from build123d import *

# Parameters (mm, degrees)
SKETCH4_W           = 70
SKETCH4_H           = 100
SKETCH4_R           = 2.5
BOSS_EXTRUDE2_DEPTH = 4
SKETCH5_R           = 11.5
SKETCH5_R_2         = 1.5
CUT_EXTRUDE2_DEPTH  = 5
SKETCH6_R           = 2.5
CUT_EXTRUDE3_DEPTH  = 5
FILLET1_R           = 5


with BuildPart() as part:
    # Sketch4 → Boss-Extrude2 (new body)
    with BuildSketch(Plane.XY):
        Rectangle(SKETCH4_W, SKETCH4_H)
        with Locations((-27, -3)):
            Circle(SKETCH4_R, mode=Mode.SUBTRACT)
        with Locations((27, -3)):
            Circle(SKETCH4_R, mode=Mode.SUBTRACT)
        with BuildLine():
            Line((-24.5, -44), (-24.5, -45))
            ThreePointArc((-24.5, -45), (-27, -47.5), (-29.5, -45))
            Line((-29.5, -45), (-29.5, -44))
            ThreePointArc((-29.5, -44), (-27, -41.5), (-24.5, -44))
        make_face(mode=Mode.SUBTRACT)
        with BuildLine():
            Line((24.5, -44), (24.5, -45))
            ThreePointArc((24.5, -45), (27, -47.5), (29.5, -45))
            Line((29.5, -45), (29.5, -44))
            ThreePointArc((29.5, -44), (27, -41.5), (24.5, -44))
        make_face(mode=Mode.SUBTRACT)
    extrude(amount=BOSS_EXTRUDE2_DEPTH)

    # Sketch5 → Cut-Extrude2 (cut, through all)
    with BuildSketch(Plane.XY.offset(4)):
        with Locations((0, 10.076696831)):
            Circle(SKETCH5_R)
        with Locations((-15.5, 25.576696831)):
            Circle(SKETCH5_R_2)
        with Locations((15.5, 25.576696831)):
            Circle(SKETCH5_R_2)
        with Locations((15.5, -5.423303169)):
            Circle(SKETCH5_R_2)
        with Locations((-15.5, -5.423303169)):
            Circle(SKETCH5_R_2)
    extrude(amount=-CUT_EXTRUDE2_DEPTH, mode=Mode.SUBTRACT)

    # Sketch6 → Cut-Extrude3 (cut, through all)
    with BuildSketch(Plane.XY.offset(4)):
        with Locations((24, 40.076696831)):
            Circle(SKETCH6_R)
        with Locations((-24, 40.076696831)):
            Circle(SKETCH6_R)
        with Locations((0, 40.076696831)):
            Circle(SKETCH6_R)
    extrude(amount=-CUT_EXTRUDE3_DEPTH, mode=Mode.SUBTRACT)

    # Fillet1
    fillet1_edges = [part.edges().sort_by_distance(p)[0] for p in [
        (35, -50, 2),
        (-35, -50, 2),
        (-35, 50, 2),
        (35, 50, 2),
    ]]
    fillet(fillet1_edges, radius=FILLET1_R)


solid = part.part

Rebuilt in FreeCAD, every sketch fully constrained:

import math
import FreeCAD as App
import Part
import Sketcher
from FreeCAD import Vector


def edges_at(feature, points):
    """Names of the edges that pass closest to the given points."""
    edges = feature.Shape.Edges
    near = lambda p: min(range(len(edges)), key=lambda i: edges[i].distToShape(Part.Vertex(*p))[0])
    return sorted({f"Edge{near(p) + 1}" for p in points})

doc = App.newDocument("Part")
body = doc.addObject("PartDesign::Body", "Body")

# Sketch on XY plane
sketch1 = body.newObject("Sketcher::SketchObject", "Sketch")
sketch1.AttachmentSupport = (doc.getObject("XY_Plane"), [""])
sketch1.MapMode = "FlatFace"
sketch1.addGeometry(Part.LineSegment(Vector(-35, 50, 0), Vector(-35, -50, 0)), False)
sketch1.addGeometry(Part.LineSegment(Vector(-35, -50, 0), Vector(35, -50, 0)), False)
sketch1.addGeometry(Part.LineSegment(Vector(35, -50, 0), Vector(35, 50, 0)), False)
sketch1.addGeometry(Part.LineSegment(Vector(35, 50, 0), Vector(-35, 50, 0)), False)
sketch1.addGeometry(Part.ArcOfCircle(Part.Circle(Vector(-27, -44, 0), Vector(0, 0, 1), 2.5), math.radians(0), math.radians(180)), False)
sketch1.addGeometry(Part.LineSegment(Vector(-24.5, -44, 0), Vector(-24.5, -45, 0)), False)
sketch1.addGeometry(Part.ArcOfCircle(Part.Circle(Vector(-27, -45, 0), Vector(0, 0, 1), 2.5), math.radians(180), math.radians(360)), False)
sketch1.addGeometry(Part.LineSegment(Vector(-29.5, -45, 0), Vector(-29.5, -44, 0)), False)
sketch1.addGeometry(Part.LineSegment(Vector(24.5, -45, 0), Vector(24.5, -44, 0)), False)
sketch1.addGeometry(Part.ArcOfCircle(Part.Circle(Vector(27, -44, 0), Vector(0, 0, 1), 2.5), math.radians(0), math.radians(180)), False)
sketch1.addGeometry(Part.LineSegment(Vector(29.5, -44, 0), Vector(29.5, -45, 0)), False)
sketch1.addGeometry(Part.ArcOfCircle(Part.Circle(Vector(27, -45, 0), Vector(0, 0, 1), 2.5), math.radians(180), math.radians(360)), False)
sketch1.addGeometry(Part.Circle(Vector(-27, -3, 0), Vector(0, 0, 1), 2.5), False)
sketch1.addGeometry(Part.Circle(Vector(27, -3, 0), Vector(0, 0, 1), 2.5), False)
sketch1.addConstraint(Sketcher.Constraint("Coincident", 0, 2, 1, 1))
sketch1.addConstraint(Sketcher.Constraint("Coincident", 1, 2, 2, 1))
sketch1.addConstraint(Sketcher.Constraint("Coincident", 2, 2, 3, 1))
sketch1.addConstraint(Sketcher.Constraint("Coincident", 3, 2, 0, 1))
sketch1.addConstraint(Sketcher.Constraint("Tangent", 4, 1, 5, 1))
sketch1.addConstraint(Sketcher.Constraint("Tangent", 5, 2, 6, 2))
sketch1.addConstraint(Sketcher.Constraint("Tangent", 6, 1, 7, 1))
sketch1.addConstraint(Sketcher.Constraint("Tangent", 7, 2, 4, 2))
sketch1.addConstraint(Sketcher.Constraint("Tangent", 8, 2, 9, 2))
sketch1.addConstraint(Sketcher.Constraint("Tangent", 9, 1, 10, 1))
sketch1.addConstraint(Sketcher.Constraint("Tangent", 10, 2, 11, 2))
sketch1.addConstraint(Sketcher.Constraint("Tangent", 11, 1, 8, 1))
sketch1.addConstraint(Sketcher.Constraint("Vertical", 0))
sketch1.addConstraint(Sketcher.Constraint("Horizontal", 1))
sketch1.addConstraint(Sketcher.Constraint("Vertical", 2))
sketch1.addConstraint(Sketcher.Constraint("Horizontal", 3))
sketch1.addConstraint(Sketcher.Constraint("Vertical", 5))
sketch1.addConstraint(Sketcher.Constraint("Vertical", 7))
sketch1.addConstraint(Sketcher.Constraint("Vertical", 8))
sketch1.addConstraint(Sketcher.Constraint("Vertical", 10))
sketch1.addConstraint(Sketcher.Constraint("Equal", 6, 9))
sketch1.addConstraint(Sketcher.Constraint("Equal", 11, 12))
sketch1.addConstraint(Sketcher.Constraint("Equal", 12, 13))
sketch1.addConstraint(Sketcher.Constraint("Symmetric", 0, 2, 2, 2, -1, 1))
sketch1.addConstraint(Sketcher.Constraint("Symmetric", 4, 3, 9, 3, -2))
sketch1.addConstraint(Sketcher.Constraint("Symmetric", 12, 3, 13, 3, -2))
sketch1.addConstraint(Sketcher.Constraint("Horizontal", 6, 3, 11, 3))
sketch1.addConstraint(Sketcher.Constraint("Vertical", 6, 3, 12, 3))
sketch1.addConstraint(Sketcher.Constraint("Diameter", 12, 5.0))
sketch1.addConstraint(Sketcher.Constraint("DistanceX", 1, 1, 1, 2, 70.0))
sketch1.addConstraint(Sketcher.Constraint("DistanceY", 0, 2, 0, 1, 100.0))
sketch1.addConstraint(Sketcher.Constraint("DistanceY", 5, 2, 5, 1, 1.0))
sketch1.addConstraint(Sketcher.Constraint("DistanceX", 4, 3, -1, 1, 27.0))
sketch1.addConstraint(Sketcher.Constraint("DistanceY", 4, 3, -1, 1, 44.0))
sketch1.addConstraint(Sketcher.Constraint("DistanceY", 12, 3, -1, 1, 3.0))
pad1 = body.newObject("PartDesign::Pad", "Pad")
pad1.Profile = sketch1
pad1.Length = 4

# Sketch on XY plane
sketch2 = body.newObject("Sketcher::SketchObject", "Sketch001")
sketch2.AttachmentSupport = (doc.getObject("XY_Plane"), [""])
sketch2.MapMode = "FlatFace"
sketch2.AttachmentOffset = App.Placement(Vector(0, 0, 4), App.Rotation())
sketch2.addGeometry(Part.Circle(Vector(0, 10.1, 0), Vector(0, 0, 1), 11.5), False)
sketch2.addGeometry(Part.Circle(Vector(-15.5, 25.6, 0), Vector(0, 0, 1), 1.5), False)
sketch2.addGeometry(Part.Circle(Vector(15.5, 25.6, 0), Vector(0, 0, 1), 1.5), False)
sketch2.addGeometry(Part.Circle(Vector(15.5, -5.4, 0), Vector(0, 0, 1), 1.5), False)
sketch2.addGeometry(Part.Circle(Vector(-15.5, -5.4, 0), Vector(0, 0, 1), 1.5), False)
sketch2.addConstraint(Sketcher.Constraint("Equal", 1, 2))
sketch2.addConstraint(Sketcher.Constraint("Equal", 2, 3))
sketch2.addConstraint(Sketcher.Constraint("Equal", 3, 4))
sketch2.addConstraint(Sketcher.Constraint("Symmetric", 1, 3, 2, 3, -2))
sketch2.addConstraint(Sketcher.Constraint("Symmetric", 3, 3, 4, 3, -2))
sketch2.addConstraint(Sketcher.Constraint("PointOnObject", 0, 3, -2))
sketch2.addConstraint(Sketcher.Constraint("Vertical", 2, 3, 3, 3))
sketch2.addConstraint(Sketcher.Constraint("Diameter", 0, 23.0))
sketch2.addConstraint(Sketcher.Constraint("Diameter", 1, 3.0))
sketch2.addConstraint(Sketcher.Constraint("DistanceX", 1, 3, 2, 3, 31.0))
sketch2.addConstraint(Sketcher.Constraint("DistanceY", 3, 3, 2, 3, 31.0))
sketch2.addConstraint(Sketcher.Constraint("DistanceY", 0, 3, 1, 3, 15.5))
sketch2.addConstraint(Sketcher.Constraint("DistanceY", -1, 1, 0, 3, 10.076697))
pocket1 = body.newObject("PartDesign::Pocket", "Pocket")
pocket1.Profile = sketch2
pocket1.Type = "ThroughAll"

# Sketch on XY plane
sketch3 = body.newObject("Sketcher::SketchObject", "Sketch002")
sketch3.AttachmentSupport = (doc.getObject("XY_Plane"), [""])
sketch3.MapMode = "FlatFace"
sketch3.AttachmentOffset = App.Placement(Vector(0, 0, 4), App.Rotation())
sketch3.addGeometry(Part.Circle(Vector(24, 40.1, 0), Vector(0, 0, 1), 2.5), False)
sketch3.addGeometry(Part.Circle(Vector(-24, 40.1, 0), Vector(0, 0, 1), 2.5), False)
sketch3.addGeometry(Part.Circle(Vector(0, 40.1, 0), Vector(0, 0, 1), 2.5), False)
sketch3.addConstraint(Sketcher.Constraint("Equal", 0, 1))
sketch3.addConstraint(Sketcher.Constraint("Equal", 1, 2))
sketch3.addConstraint(Sketcher.Constraint("Symmetric", 0, 3, 1, 3, -2))
sketch3.addConstraint(Sketcher.Constraint("PointOnObject", 2, 3, -2))
sketch3.addConstraint(Sketcher.Constraint("Horizontal", 1, 3, 2, 3))
sketch3.addConstraint(Sketcher.Constraint("Diameter", 0, 5.0))
sketch3.addConstraint(Sketcher.Constraint("DistanceX", -1, 1, 0, 3, 24.0))
sketch3.addConstraint(Sketcher.Constraint("DistanceY", -1, 1, 0, 3, 40.076697))
pocket2 = body.newObject("PartDesign::Pocket", "Pocket001")
pocket2.Profile = sketch3
pocket2.Type = "ThroughAll"
doc.recompute()

fillet = body.newObject("PartDesign::Fillet", "Fillet")
fillet.Base = (pocket2, edges_at(pocket2, [
    (35, -50, 2),
    (-35, -50, 2),
    (-35, 50, 2),
    (35, 50, 2),
]))
fillet.Radius = 5

doc.recompute()
